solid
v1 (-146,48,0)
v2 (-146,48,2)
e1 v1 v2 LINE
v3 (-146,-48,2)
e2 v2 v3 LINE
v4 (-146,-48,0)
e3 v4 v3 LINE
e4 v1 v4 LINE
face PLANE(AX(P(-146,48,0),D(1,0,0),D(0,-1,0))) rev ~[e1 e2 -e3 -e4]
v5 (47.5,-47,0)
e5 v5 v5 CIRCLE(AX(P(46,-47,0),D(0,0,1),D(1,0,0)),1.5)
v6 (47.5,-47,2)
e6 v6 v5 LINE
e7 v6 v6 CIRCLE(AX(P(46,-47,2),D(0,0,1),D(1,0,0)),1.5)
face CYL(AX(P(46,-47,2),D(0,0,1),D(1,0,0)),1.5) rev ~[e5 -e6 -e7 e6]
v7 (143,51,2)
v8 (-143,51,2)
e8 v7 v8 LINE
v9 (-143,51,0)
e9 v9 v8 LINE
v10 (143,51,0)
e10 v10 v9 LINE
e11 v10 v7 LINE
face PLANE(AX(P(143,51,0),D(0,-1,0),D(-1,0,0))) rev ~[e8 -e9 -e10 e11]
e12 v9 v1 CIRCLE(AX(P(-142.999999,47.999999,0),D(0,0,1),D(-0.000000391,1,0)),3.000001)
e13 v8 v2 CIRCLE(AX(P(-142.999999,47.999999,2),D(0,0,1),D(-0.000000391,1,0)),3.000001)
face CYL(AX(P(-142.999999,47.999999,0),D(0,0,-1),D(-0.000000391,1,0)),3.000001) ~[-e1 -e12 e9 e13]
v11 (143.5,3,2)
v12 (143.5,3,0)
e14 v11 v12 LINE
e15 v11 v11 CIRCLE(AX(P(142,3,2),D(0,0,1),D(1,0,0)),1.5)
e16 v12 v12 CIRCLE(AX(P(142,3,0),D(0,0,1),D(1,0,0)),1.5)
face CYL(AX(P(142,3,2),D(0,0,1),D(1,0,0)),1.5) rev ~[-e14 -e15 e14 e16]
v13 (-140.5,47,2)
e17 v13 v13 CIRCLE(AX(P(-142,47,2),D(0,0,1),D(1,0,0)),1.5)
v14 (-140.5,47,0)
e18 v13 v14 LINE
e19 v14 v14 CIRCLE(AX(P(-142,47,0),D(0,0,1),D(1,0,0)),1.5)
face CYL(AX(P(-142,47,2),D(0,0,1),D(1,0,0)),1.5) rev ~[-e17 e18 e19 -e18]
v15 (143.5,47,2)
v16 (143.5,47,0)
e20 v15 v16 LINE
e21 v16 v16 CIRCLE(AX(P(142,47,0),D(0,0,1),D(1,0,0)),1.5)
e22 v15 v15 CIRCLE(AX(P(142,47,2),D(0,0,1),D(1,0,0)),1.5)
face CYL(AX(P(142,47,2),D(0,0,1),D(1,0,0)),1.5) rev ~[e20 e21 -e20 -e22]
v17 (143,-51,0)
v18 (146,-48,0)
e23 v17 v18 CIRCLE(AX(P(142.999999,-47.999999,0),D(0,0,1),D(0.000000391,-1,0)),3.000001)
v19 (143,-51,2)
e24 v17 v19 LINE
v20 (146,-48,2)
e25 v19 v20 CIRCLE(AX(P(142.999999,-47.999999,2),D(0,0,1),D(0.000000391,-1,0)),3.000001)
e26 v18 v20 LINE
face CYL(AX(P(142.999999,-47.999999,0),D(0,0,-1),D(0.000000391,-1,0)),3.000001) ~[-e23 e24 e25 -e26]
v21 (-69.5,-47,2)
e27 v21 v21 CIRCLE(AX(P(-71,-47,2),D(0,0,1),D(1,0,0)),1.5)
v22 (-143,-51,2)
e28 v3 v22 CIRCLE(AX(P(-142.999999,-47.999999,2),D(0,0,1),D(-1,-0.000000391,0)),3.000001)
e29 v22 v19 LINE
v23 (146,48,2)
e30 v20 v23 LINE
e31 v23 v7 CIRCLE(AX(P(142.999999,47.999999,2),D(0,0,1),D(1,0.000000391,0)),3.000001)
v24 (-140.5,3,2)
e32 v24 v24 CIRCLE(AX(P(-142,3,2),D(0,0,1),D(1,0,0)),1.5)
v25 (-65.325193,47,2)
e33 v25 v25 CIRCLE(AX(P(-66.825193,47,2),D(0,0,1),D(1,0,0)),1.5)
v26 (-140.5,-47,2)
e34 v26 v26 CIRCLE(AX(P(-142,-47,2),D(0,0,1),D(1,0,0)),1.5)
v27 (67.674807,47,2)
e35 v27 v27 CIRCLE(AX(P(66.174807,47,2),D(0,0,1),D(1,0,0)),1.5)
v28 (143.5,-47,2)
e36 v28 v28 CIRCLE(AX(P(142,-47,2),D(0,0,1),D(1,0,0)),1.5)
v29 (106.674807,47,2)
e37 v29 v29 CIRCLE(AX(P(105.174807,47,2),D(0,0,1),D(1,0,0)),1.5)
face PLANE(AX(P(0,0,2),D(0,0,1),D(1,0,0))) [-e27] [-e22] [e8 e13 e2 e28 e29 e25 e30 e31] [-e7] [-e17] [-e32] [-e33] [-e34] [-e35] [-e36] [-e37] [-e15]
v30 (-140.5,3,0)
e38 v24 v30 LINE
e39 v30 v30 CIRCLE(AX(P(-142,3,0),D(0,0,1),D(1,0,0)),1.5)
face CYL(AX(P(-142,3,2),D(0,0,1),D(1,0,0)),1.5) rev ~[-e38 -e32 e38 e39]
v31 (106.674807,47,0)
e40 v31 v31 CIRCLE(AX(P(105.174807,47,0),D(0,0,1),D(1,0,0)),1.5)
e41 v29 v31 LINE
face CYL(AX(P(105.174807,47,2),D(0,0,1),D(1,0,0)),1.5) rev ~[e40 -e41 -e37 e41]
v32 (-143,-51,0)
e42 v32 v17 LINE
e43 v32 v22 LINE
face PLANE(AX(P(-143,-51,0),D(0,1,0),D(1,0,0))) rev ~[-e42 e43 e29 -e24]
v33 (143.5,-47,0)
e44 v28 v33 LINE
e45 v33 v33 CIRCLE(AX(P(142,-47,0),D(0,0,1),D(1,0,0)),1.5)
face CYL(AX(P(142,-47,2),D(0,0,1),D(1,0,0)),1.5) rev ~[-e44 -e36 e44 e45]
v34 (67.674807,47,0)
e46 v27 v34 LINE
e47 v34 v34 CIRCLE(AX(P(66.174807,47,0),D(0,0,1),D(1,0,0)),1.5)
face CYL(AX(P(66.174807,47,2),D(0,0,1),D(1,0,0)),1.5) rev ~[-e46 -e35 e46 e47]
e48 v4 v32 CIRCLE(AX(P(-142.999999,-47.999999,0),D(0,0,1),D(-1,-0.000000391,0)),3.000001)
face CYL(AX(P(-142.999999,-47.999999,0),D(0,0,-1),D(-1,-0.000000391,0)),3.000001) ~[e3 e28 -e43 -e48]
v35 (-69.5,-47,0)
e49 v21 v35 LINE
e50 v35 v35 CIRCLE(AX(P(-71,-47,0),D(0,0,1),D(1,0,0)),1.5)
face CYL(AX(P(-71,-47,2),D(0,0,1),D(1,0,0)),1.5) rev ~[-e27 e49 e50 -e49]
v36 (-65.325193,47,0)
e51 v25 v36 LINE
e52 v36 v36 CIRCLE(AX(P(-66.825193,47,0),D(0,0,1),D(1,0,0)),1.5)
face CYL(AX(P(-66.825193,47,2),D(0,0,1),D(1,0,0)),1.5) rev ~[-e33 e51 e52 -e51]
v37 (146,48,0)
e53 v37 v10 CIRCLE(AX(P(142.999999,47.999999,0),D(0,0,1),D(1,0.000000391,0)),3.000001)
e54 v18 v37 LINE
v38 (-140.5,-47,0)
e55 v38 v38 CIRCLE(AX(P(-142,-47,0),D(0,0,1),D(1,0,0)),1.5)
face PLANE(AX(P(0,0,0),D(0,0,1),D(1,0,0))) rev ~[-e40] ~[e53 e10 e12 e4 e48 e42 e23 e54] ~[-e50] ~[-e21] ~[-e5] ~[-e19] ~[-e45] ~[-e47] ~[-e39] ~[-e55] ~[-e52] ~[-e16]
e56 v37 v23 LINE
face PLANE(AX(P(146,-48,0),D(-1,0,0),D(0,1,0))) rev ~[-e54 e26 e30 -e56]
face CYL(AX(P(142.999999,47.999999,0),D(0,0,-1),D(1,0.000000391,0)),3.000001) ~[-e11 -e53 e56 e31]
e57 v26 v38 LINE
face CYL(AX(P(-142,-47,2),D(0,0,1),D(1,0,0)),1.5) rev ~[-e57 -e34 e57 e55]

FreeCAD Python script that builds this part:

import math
import FreeCAD as App
import Part
import Sketcher

doc = App.newDocument("Part")
body = doc.addObject("PartDesign::Body", "Body")

# Sketch on XY plane
sketch1 = doc.addObject("Sketcher::SketchObject", "Sketch")
body.addObject(sketch1)
sketch1.AttachmentSupport = (doc.XY_Plane, [""])
sketch1.MapMode = "FlatFace"
sketch1.addGeometry(Part.ArcOfCircle(Part.Circle(App.Vector(143, 48, 0), App.Vector(0, 0, 1), 3), math.radians(0), math.radians(90)), False)
sketch1.addGeometry(Part.LineSegment(App.Vector(143, 51, 0), App.Vector(-143, 51, 0)), False)
sketch1.addGeometry(Part.ArcOfCircle(Part.Circle(App.Vector(-143, 48, 0), App.Vector(0, 0, 1), 3), math.radians(90), math.radians(180)), False)
sketch1.addGeometry(Part.LineSegment(App.Vector(-146, 48, 0), App.Vector(-146, -48, 0)), False)
sketch1.addGeometry(Part.ArcOfCircle(Part.Circle(App.Vector(-143, -48, 0), App.Vector(0, 0, 1), 3), math.radians(-180), math.radians(-90)), False)
sketch1.addGeometry(Part.LineSegment(App.Vector(-143, -51, 0), App.Vector(143, -51, 0)), False)
sketch1.addGeometry(Part.ArcOfCircle(Part.Circle(App.Vector(143, -48, 0), App.Vector(0, 0, 1), 3), math.radians(-90), math.radians(0)), False)
sketch1.addGeometry(Part.LineSegment(App.Vector(146, -48, 0), App.Vector(146, 48, 0)), False)
sketch1.addConstraint(Sketcher.Constraint("Tangent", 0, 2, 1, 1))
sketch1.addConstraint(Sketcher.Constraint("Tangent", 1, 2, 2, 1))
sketch1.addConstraint(Sketcher.Constraint("Tangent", 2, 2, 3, 1))
sketch1.addConstraint(Sketcher.Constraint("Tangent", 3, 2, 4, 1))
sketch1.addConstraint(Sketcher.Constraint("Tangent", 4, 2, 5, 1))
sketch1.addConstraint(Sketcher.Constraint("Tangent", 5, 2, 6, 1))
sketch1.addConstraint(Sketcher.Constraint("Tangent", 6, 2, 7, 1))
sketch1.addConstraint(Sketcher.Constraint("Tangent", 7, 2, 0, 1))
sketch1.addConstraint(Sketcher.Constraint("Horizontal", 1))
sketch1.addConstraint(Sketcher.Constraint("Vertical", 3))
sketch1.addConstraint(Sketcher.Constraint("Horizontal", 5))
sketch1.addConstraint(Sketcher.Constraint("Vertical", 7))
sketch1.addConstraint(Sketcher.Constraint("Equal", 0, 2))
sketch1.addConstraint(Sketcher.Constraint("Equal", 2, 4))
sketch1.addConstraint(Sketcher.Constraint("Equal", 4, 6))
sketch1.addConstraint(Sketcher.Constraint("Symmetric", 0, 3, 4, 3, -1, 1))
sketch1.addConstraint(Sketcher.Constraint("Radius", 0, 3.000001))
sketch1.addConstraint(Sketcher.Constraint("DistanceX", 1, 2, 1, 1, 286.0))
sketch1.addConstraint(Sketcher.Constraint("DistanceY", 3, 2, 3, 1, 96.0))
pad1 = doc.addObject("PartDesign::Pad", "Pad")
body.addObject(pad1)
pad1.Profile = sketch1
pad1.Length = 2

# Sketch on XY plane
sketch2 = doc.addObject("Sketcher::SketchObject", "Sketch001")
body.addObject(sketch2)
sketch2.AttachmentSupport = (doc.XY_Plane, [""])
sketch2.MapMode = "FlatFace"
sketch2.AttachmentOffset = App.Placement(App.Vector(0, 0, 2), App.Rotation())
sketch2.addGeometry(Part.Circle(App.Vector(-142, 47, 0), App.Vector(0, 0, 1), 1.5), False)
sketch2.addGeometry(Part.Circle(App.Vector(142, 47, 0), App.Vector(0, 0, 1), 1.5), False)
sketch2.addGeometry(Part.Circle(App.Vector(-66.8, 47, 0), App.Vector(0, 0, 1), 1.5), False)
sketch2.addGeometry(Part.Circle(App.Vector(66.2, 47, 0), App.Vector(0, 0, 1), 1.5), False)
sketch2.addGeometry(Part.Circle(App.Vector(-142, -47, 0), App.Vector(0, 0, 1), 1.5), False)
sketch2.addGeometry(Part.Circle(App.Vector(142, -47, 0), App.Vector(0, 0, 1), 1.5), False)
sketch2.addGeometry(Part.Circle(App.Vector(-71, -47, 0), App.Vector(0, 0, 1), 1.5), False)
sketch2.addGeometry(Part.Circle(App.Vector(46, -47, 0), App.Vector(0, 0, 1), 1.5), False)
sketch2.addGeometry(Part.Circle(App.Vector(142, 3, 0), App.Vector(0, 0, 1), 1.5), False)
sketch2.addGeometry(Part.Circle(App.Vector(-142, 3, 0), App.Vector(0, 0, 1), 1.5), False)
sketch2.addGeometry(Part.Circle(App.Vector(105.2, 47, 0), App.Vector(0, 0, 1), 1.5), False)
sketch2.addConstraint(Sketcher.Constraint("Equal", 0, 1))
sketch2.addConstraint(Sketcher.Constraint("Equal", 1, 2))
sketch2.addConstraint(Sketcher.Constraint("Equal", 2, 3))
sketch2.addConstraint(Sketcher.Constraint("Equal", 3, 4))
sketch2.addConstraint(Sketcher.Constraint("Equal", 4, 5))
sketch2.addConstraint(Sketcher.Constraint("Equal", 5, 6))
sketch2.addConstraint(Sketcher.Constraint("Equal", 6, 7))
sketch2.addConstraint(Sketcher.Constraint("Equal", 7, 8))
sketch2.addConstraint(Sketcher.Constraint("Equal", 8, 9))
sketch2.addConstraint(Sketcher.Constraint("Equal", 9, 10))
sketch2.addConstraint(Sketcher.Constraint("Symmetric", 1, 3, 4, 3, -1, 1))
sketch2.addConstraint(Sketcher.Constraint("Symmetric", 0, 3, 5, 3, -1, 1))
sketch2.addConstraint(Sketcher.Constraint("Symmetric", 0, 3, 1, 3, -2))
sketch2.addConstraint(Sketcher.Constraint("Symmetric", 8, 3, 9, 3, -2))
sketch2.addConstraint(Sketcher.Constraint("Horizontal", 1, 3, 2, 3))
sketch2.addConstraint(Sketcher.Constraint("Horizontal", 2, 3, 3, 3))
sketch2.addConstraint(Sketcher.Constraint("Horizontal", 5, 3, 6, 3))
sketch2.addConstraint(Sketcher.Constraint("Horizontal", 6, 3, 7, 3))
sketch2.addConstraint(Sketcher.Constraint("Horizontal", 3, 3, 10, 3))
sketch2.addConstraint(Sketcher.Constraint("Vertical", 5, 3, 8, 3))
sketch2.addConstraint(Sketcher.Constraint("Diameter", 0, 3.0))
sketch2.addConstraint(Sketcher.Constraint("DistanceX", 0, 3, -1, 1, 142.0))
sketch2.addConstraint(Sketcher.Constraint("DistanceY", -1, 1, 0, 3, 47.0))
sketch2.addConstraint(Sketcher.Constraint("DistanceX", 6, 3, -1, 1, 71.0))
sketch2.addConstraint(Sketcher.Constraint("DistanceX", -1, 1, 7, 3, 46.0))
sketch2.addConstraint(Sketcher.Constraint("DistanceY", -1, 1, 8, 3, 3.0))
sketch2.addConstraint(Sketcher.Constraint("DistanceX", 2, 3, 3, 3, 133.0))
sketch2.addConstraint(Sketcher.Constraint("DistanceX", 3, 3, 10, 3, 39.0))
sketch2.addConstraint(Sketcher.Constraint("DistanceX", 2, 3, -1, 1, 66.825193))
pocket1 = doc.addObject("PartDesign::Pocket", "Pocket")
body.addObject(pocket1)
pocket1.Profile = sketch2
pocket1.Type = "ThroughAll"

doc.recompute()
